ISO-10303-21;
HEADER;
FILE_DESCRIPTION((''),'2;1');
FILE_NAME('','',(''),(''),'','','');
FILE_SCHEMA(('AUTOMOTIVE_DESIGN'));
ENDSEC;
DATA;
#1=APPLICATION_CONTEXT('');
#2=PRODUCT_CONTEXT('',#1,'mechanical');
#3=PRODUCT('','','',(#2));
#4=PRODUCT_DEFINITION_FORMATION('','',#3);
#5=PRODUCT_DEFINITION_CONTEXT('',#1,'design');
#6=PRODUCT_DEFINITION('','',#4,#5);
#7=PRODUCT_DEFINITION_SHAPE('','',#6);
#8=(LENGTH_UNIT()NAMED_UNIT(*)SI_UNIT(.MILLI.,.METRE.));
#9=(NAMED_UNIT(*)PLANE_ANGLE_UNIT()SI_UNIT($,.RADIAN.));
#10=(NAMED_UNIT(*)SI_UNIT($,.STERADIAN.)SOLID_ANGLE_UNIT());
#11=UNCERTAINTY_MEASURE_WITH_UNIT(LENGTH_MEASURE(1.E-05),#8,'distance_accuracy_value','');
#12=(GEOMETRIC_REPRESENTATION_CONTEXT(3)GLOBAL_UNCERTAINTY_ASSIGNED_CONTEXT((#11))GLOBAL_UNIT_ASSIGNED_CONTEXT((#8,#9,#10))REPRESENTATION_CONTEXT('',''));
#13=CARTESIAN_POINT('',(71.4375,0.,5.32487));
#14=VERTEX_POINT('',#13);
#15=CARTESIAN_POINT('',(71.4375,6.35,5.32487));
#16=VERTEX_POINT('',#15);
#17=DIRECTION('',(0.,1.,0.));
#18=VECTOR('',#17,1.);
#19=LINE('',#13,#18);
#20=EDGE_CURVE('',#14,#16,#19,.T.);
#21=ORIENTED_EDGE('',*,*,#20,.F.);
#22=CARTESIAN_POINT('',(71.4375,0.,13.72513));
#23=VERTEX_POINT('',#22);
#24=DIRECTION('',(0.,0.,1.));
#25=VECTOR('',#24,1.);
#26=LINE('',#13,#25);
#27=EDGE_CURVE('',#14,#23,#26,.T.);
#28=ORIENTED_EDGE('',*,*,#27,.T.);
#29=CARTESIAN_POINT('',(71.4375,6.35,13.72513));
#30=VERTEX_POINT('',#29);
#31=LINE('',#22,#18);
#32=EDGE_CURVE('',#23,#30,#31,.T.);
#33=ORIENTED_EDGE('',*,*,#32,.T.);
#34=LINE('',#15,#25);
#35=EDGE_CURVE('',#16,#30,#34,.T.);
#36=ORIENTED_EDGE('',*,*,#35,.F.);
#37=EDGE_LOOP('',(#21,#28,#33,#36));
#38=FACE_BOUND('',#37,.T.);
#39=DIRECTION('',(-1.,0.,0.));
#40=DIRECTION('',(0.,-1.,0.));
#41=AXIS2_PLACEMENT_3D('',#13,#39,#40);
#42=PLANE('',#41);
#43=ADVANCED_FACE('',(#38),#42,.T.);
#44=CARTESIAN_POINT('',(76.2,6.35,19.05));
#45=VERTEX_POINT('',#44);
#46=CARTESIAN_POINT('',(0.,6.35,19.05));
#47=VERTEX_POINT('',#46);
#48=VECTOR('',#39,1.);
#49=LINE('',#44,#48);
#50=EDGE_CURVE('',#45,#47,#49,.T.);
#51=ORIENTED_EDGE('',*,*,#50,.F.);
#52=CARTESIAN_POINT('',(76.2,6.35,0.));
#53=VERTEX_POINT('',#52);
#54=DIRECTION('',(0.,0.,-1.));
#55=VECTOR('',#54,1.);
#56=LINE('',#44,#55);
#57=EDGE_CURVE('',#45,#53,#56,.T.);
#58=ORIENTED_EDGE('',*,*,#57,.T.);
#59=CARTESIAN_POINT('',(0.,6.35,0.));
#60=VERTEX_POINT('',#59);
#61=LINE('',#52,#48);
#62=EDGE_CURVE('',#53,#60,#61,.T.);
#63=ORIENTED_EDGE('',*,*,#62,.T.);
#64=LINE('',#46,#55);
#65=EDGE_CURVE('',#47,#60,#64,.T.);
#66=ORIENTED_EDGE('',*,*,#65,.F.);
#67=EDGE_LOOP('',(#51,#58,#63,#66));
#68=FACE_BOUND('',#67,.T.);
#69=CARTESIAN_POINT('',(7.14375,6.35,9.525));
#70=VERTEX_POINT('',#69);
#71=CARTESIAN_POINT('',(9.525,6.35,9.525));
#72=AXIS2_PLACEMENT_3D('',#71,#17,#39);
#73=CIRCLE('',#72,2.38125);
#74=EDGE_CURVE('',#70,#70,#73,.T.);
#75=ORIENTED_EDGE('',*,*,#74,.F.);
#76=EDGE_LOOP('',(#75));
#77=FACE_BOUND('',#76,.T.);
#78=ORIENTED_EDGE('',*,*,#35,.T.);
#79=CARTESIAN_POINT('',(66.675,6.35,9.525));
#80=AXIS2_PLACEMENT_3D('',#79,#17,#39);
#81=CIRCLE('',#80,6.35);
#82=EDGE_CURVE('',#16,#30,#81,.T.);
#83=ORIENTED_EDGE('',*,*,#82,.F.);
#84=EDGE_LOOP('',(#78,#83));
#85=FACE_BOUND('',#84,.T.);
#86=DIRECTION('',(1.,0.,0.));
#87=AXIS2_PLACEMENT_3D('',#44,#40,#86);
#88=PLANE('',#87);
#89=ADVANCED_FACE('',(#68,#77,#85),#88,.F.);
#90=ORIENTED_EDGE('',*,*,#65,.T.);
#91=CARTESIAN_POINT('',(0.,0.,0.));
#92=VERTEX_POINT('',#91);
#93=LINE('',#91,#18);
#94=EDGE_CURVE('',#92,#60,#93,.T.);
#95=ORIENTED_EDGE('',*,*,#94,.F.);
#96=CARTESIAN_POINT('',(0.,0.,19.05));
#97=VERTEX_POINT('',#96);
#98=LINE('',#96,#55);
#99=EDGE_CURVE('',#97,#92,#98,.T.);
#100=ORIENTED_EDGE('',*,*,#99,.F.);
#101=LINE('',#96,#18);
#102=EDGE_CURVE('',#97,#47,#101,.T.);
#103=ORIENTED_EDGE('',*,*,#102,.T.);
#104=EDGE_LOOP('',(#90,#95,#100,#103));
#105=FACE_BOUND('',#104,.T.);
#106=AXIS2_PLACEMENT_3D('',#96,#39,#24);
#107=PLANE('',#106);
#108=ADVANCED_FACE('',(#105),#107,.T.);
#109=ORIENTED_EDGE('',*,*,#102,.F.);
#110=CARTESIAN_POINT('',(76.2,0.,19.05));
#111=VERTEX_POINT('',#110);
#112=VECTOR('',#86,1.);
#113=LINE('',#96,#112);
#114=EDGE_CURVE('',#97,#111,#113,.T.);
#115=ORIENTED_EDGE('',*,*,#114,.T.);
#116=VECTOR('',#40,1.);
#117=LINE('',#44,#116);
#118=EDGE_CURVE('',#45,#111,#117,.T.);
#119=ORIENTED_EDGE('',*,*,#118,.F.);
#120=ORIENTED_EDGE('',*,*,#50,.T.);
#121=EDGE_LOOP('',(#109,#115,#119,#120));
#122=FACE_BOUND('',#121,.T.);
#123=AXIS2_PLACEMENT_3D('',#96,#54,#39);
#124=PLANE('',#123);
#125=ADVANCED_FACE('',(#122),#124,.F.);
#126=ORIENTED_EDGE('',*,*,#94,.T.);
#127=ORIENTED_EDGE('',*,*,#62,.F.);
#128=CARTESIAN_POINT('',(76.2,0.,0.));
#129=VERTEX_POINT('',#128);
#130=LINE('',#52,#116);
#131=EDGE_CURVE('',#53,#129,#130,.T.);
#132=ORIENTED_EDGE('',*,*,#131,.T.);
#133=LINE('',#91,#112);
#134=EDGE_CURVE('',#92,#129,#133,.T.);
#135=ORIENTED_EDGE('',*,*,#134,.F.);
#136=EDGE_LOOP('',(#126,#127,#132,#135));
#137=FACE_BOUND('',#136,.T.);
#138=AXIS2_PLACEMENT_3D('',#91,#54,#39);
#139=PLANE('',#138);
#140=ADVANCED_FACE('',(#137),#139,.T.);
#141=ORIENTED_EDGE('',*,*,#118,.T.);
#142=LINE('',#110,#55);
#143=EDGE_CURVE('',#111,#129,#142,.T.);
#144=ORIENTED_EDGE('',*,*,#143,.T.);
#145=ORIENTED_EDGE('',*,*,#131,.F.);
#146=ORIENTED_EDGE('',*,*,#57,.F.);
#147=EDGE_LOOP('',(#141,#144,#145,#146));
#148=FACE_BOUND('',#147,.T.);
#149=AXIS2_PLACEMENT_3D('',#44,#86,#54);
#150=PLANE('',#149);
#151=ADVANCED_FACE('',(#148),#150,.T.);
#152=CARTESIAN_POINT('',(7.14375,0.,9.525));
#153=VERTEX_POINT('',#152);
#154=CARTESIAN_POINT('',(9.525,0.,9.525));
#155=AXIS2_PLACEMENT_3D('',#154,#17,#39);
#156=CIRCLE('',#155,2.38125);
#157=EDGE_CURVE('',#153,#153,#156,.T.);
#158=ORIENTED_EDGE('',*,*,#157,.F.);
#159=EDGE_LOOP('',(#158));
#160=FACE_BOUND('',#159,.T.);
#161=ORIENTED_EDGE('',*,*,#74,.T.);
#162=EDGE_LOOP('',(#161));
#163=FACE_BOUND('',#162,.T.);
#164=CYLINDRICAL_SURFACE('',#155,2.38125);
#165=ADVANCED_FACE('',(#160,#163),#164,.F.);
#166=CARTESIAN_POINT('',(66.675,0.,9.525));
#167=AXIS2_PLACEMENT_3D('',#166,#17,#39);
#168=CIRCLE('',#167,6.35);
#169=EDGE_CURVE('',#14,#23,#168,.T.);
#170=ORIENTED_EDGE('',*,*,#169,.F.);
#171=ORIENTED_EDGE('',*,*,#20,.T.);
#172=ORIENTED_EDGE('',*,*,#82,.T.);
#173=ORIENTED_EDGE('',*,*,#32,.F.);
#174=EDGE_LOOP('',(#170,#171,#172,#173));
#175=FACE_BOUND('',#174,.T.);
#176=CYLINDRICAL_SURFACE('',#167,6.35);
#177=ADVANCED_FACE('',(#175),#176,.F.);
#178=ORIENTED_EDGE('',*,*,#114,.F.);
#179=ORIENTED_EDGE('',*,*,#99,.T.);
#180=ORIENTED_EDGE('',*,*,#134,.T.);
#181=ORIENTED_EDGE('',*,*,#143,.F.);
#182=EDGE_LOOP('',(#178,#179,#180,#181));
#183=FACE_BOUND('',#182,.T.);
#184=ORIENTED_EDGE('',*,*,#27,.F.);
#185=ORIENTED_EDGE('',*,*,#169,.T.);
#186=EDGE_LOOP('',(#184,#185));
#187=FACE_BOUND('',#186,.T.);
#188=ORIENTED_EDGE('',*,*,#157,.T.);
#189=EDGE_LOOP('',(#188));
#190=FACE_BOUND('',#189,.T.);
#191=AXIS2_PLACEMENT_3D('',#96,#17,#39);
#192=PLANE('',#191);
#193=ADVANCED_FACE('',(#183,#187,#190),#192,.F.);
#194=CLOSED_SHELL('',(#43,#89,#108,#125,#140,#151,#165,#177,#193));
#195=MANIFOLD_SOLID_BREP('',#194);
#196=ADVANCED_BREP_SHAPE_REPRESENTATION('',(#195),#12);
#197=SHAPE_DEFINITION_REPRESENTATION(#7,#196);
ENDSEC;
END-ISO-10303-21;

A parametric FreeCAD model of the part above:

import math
import FreeCAD as App
import Part
import Sketcher
from FreeCAD import Vector
Q = App.Units.Quantity

doc = App.newDocument("Part")
body = doc.addObject("PartDesign::Body", "Body")

# Sketch on XY plane
sketch1 = body.newObject("Sketcher::SketchObject", "Sketch")
sketch1.AttachmentSupport = (doc.getObject("XY_Plane"), [""])
sketch1.MapMode = "FlatFace"
sketch1.addGeometry(Part.LineSegment(Vector(0, 6.35, 0), Vector(0, 0, 0)), False)
sketch1.addGeometry(Part.LineSegment(Vector(0, 0, 0), Vector(76.2, 0, 0)), False)
sketch1.addGeometry(Part.LineSegment(Vector(76.2, 0, 0), Vector(76.2, 6.35, 0)), False)
sketch1.addGeometry(Part.LineSegment(Vector(76.2, 6.35, 0), Vector(0, 6.35, 0)), False)
sketch1.addConstraint(Sketcher.Constraint("Coincident", 0, 2, 1, 1))
sketch1.addConstraint(Sketcher.Constraint("Coincident", 1, 2, 2, 1))
sketch1.addConstraint(Sketcher.Constraint("Coincident", 2, 2, 3, 1))
sketch1.addConstraint(Sketcher.Constraint("Coincident", 3, 2, 0, 1))
sketch1.addConstraint(Sketcher.Constraint("Vertical", 0))
sketch1.addConstraint(Sketcher.Constraint("Horizontal", 1))
sketch1.addConstraint(Sketcher.Constraint("Vertical", 2))
sketch1.addConstraint(Sketcher.Constraint("Horizontal", 3))
sketch1.addConstraint(Sketcher.Constraint("Coincident", 0, 2, -1, 1))
sketch1.addConstraint(Sketcher.Constraint("DistanceX", 1, 1, 1, 2, Q("3 in")))
sketch1.addConstraint(Sketcher.Constraint("DistanceY", 0, 2, 0, 1, Q("0.25 in")))
pad1 = body.newObject("PartDesign::Pad", "Pad")
pad1.Profile = sketch1
pad1.Length = Q("0.75 in")

# Sketch on XZ plane
sketch2 = body.newObject("Sketcher::SketchObject", "Sketch001")
sketch2.AttachmentSupport = (doc.getObject("XZ_Plane"), [""])
sketch2.MapMode = "FlatFace"
sketch2.AttachmentOffset = App.Placement(Vector(0, 0, -0.25 * 25.4), App.Rotation())
sketch2.addGeometry(Part.LineSegment(Vector(71.4375, 13.72513, 0), Vector(71.4375, 5.32487, 0)), False)
sketch2.addGeometry(Part.ArcOfCircle(Part.Circle(Vector(66.675, 9.525, 0), Vector(0, 0, 1), 6.35), math.radians(41.409622), math.radians(318.590378)), False)
sketch2.addConstraint(Sketcher.Constraint("Coincident", 0, 1, 1, 1))
sketch2.addConstraint(Sketcher.Constraint("Coincident", 1, 2, 0, 2))
sketch2.addConstraint(Sketcher.Constraint("Vertical", 0))
sketch2.addConstraint(Sketcher.Constraint("Radius", 1, Q("0.25 in")))
sketch2.addConstraint(Sketcher.Constraint("DistanceX", -1, 1, 1, 3, Q("2.625 in")))
sketch2.addConstraint(Sketcher.Constraint("DistanceY", -1, 1, 1, 3, Q("0.375 in")))
sketch2.addConstraint(Sketcher.Constraint("DistanceX", -1, 1, 0, 1, Q("2.8125 in")))
pocket1 = body.newObject("PartDesign::Pocket", "Pocket")
pocket1.Profile = sketch2
pocket1.Type = "ThroughAll"
pocket1.Reversed = True

# Sketch on XZ plane
sketch3 = body.newObject("Sketcher::SketchObject", "Sketch002")
sketch3.AttachmentSupport = (doc.getObject("XZ_Plane"), [""])
sketch3.MapMode = "FlatFace"
sketch3.AttachmentOffset = App.Placement(Vector(0, 0, -0.25 * 25.4), App.Rotation())
sketch3.addGeometry(Part.Circle(Vector(9.525, 9.525, 0), Vector(0, 0, 1), 2.38125), False)
sketch3.addConstraint(Sketcher.Constraint("Diameter", 0, Q("0.1875 in")))
sketch3.addConstraint(Sketcher.Constraint("DistanceX", -1, 1, 0, 3, Q("0.375 in")))
sketch3.addConstraint(Sketcher.Constraint("DistanceY", -1, 1, 0, 3, Q("0.375 in")))
pocket2 = body.newObject("PartDesign::Pocket", "Pocket001")
pocket2.Profile = sketch3
pocket2.Type = "ThroughAll"
pocket2.Reversed = True

doc.recompute()
